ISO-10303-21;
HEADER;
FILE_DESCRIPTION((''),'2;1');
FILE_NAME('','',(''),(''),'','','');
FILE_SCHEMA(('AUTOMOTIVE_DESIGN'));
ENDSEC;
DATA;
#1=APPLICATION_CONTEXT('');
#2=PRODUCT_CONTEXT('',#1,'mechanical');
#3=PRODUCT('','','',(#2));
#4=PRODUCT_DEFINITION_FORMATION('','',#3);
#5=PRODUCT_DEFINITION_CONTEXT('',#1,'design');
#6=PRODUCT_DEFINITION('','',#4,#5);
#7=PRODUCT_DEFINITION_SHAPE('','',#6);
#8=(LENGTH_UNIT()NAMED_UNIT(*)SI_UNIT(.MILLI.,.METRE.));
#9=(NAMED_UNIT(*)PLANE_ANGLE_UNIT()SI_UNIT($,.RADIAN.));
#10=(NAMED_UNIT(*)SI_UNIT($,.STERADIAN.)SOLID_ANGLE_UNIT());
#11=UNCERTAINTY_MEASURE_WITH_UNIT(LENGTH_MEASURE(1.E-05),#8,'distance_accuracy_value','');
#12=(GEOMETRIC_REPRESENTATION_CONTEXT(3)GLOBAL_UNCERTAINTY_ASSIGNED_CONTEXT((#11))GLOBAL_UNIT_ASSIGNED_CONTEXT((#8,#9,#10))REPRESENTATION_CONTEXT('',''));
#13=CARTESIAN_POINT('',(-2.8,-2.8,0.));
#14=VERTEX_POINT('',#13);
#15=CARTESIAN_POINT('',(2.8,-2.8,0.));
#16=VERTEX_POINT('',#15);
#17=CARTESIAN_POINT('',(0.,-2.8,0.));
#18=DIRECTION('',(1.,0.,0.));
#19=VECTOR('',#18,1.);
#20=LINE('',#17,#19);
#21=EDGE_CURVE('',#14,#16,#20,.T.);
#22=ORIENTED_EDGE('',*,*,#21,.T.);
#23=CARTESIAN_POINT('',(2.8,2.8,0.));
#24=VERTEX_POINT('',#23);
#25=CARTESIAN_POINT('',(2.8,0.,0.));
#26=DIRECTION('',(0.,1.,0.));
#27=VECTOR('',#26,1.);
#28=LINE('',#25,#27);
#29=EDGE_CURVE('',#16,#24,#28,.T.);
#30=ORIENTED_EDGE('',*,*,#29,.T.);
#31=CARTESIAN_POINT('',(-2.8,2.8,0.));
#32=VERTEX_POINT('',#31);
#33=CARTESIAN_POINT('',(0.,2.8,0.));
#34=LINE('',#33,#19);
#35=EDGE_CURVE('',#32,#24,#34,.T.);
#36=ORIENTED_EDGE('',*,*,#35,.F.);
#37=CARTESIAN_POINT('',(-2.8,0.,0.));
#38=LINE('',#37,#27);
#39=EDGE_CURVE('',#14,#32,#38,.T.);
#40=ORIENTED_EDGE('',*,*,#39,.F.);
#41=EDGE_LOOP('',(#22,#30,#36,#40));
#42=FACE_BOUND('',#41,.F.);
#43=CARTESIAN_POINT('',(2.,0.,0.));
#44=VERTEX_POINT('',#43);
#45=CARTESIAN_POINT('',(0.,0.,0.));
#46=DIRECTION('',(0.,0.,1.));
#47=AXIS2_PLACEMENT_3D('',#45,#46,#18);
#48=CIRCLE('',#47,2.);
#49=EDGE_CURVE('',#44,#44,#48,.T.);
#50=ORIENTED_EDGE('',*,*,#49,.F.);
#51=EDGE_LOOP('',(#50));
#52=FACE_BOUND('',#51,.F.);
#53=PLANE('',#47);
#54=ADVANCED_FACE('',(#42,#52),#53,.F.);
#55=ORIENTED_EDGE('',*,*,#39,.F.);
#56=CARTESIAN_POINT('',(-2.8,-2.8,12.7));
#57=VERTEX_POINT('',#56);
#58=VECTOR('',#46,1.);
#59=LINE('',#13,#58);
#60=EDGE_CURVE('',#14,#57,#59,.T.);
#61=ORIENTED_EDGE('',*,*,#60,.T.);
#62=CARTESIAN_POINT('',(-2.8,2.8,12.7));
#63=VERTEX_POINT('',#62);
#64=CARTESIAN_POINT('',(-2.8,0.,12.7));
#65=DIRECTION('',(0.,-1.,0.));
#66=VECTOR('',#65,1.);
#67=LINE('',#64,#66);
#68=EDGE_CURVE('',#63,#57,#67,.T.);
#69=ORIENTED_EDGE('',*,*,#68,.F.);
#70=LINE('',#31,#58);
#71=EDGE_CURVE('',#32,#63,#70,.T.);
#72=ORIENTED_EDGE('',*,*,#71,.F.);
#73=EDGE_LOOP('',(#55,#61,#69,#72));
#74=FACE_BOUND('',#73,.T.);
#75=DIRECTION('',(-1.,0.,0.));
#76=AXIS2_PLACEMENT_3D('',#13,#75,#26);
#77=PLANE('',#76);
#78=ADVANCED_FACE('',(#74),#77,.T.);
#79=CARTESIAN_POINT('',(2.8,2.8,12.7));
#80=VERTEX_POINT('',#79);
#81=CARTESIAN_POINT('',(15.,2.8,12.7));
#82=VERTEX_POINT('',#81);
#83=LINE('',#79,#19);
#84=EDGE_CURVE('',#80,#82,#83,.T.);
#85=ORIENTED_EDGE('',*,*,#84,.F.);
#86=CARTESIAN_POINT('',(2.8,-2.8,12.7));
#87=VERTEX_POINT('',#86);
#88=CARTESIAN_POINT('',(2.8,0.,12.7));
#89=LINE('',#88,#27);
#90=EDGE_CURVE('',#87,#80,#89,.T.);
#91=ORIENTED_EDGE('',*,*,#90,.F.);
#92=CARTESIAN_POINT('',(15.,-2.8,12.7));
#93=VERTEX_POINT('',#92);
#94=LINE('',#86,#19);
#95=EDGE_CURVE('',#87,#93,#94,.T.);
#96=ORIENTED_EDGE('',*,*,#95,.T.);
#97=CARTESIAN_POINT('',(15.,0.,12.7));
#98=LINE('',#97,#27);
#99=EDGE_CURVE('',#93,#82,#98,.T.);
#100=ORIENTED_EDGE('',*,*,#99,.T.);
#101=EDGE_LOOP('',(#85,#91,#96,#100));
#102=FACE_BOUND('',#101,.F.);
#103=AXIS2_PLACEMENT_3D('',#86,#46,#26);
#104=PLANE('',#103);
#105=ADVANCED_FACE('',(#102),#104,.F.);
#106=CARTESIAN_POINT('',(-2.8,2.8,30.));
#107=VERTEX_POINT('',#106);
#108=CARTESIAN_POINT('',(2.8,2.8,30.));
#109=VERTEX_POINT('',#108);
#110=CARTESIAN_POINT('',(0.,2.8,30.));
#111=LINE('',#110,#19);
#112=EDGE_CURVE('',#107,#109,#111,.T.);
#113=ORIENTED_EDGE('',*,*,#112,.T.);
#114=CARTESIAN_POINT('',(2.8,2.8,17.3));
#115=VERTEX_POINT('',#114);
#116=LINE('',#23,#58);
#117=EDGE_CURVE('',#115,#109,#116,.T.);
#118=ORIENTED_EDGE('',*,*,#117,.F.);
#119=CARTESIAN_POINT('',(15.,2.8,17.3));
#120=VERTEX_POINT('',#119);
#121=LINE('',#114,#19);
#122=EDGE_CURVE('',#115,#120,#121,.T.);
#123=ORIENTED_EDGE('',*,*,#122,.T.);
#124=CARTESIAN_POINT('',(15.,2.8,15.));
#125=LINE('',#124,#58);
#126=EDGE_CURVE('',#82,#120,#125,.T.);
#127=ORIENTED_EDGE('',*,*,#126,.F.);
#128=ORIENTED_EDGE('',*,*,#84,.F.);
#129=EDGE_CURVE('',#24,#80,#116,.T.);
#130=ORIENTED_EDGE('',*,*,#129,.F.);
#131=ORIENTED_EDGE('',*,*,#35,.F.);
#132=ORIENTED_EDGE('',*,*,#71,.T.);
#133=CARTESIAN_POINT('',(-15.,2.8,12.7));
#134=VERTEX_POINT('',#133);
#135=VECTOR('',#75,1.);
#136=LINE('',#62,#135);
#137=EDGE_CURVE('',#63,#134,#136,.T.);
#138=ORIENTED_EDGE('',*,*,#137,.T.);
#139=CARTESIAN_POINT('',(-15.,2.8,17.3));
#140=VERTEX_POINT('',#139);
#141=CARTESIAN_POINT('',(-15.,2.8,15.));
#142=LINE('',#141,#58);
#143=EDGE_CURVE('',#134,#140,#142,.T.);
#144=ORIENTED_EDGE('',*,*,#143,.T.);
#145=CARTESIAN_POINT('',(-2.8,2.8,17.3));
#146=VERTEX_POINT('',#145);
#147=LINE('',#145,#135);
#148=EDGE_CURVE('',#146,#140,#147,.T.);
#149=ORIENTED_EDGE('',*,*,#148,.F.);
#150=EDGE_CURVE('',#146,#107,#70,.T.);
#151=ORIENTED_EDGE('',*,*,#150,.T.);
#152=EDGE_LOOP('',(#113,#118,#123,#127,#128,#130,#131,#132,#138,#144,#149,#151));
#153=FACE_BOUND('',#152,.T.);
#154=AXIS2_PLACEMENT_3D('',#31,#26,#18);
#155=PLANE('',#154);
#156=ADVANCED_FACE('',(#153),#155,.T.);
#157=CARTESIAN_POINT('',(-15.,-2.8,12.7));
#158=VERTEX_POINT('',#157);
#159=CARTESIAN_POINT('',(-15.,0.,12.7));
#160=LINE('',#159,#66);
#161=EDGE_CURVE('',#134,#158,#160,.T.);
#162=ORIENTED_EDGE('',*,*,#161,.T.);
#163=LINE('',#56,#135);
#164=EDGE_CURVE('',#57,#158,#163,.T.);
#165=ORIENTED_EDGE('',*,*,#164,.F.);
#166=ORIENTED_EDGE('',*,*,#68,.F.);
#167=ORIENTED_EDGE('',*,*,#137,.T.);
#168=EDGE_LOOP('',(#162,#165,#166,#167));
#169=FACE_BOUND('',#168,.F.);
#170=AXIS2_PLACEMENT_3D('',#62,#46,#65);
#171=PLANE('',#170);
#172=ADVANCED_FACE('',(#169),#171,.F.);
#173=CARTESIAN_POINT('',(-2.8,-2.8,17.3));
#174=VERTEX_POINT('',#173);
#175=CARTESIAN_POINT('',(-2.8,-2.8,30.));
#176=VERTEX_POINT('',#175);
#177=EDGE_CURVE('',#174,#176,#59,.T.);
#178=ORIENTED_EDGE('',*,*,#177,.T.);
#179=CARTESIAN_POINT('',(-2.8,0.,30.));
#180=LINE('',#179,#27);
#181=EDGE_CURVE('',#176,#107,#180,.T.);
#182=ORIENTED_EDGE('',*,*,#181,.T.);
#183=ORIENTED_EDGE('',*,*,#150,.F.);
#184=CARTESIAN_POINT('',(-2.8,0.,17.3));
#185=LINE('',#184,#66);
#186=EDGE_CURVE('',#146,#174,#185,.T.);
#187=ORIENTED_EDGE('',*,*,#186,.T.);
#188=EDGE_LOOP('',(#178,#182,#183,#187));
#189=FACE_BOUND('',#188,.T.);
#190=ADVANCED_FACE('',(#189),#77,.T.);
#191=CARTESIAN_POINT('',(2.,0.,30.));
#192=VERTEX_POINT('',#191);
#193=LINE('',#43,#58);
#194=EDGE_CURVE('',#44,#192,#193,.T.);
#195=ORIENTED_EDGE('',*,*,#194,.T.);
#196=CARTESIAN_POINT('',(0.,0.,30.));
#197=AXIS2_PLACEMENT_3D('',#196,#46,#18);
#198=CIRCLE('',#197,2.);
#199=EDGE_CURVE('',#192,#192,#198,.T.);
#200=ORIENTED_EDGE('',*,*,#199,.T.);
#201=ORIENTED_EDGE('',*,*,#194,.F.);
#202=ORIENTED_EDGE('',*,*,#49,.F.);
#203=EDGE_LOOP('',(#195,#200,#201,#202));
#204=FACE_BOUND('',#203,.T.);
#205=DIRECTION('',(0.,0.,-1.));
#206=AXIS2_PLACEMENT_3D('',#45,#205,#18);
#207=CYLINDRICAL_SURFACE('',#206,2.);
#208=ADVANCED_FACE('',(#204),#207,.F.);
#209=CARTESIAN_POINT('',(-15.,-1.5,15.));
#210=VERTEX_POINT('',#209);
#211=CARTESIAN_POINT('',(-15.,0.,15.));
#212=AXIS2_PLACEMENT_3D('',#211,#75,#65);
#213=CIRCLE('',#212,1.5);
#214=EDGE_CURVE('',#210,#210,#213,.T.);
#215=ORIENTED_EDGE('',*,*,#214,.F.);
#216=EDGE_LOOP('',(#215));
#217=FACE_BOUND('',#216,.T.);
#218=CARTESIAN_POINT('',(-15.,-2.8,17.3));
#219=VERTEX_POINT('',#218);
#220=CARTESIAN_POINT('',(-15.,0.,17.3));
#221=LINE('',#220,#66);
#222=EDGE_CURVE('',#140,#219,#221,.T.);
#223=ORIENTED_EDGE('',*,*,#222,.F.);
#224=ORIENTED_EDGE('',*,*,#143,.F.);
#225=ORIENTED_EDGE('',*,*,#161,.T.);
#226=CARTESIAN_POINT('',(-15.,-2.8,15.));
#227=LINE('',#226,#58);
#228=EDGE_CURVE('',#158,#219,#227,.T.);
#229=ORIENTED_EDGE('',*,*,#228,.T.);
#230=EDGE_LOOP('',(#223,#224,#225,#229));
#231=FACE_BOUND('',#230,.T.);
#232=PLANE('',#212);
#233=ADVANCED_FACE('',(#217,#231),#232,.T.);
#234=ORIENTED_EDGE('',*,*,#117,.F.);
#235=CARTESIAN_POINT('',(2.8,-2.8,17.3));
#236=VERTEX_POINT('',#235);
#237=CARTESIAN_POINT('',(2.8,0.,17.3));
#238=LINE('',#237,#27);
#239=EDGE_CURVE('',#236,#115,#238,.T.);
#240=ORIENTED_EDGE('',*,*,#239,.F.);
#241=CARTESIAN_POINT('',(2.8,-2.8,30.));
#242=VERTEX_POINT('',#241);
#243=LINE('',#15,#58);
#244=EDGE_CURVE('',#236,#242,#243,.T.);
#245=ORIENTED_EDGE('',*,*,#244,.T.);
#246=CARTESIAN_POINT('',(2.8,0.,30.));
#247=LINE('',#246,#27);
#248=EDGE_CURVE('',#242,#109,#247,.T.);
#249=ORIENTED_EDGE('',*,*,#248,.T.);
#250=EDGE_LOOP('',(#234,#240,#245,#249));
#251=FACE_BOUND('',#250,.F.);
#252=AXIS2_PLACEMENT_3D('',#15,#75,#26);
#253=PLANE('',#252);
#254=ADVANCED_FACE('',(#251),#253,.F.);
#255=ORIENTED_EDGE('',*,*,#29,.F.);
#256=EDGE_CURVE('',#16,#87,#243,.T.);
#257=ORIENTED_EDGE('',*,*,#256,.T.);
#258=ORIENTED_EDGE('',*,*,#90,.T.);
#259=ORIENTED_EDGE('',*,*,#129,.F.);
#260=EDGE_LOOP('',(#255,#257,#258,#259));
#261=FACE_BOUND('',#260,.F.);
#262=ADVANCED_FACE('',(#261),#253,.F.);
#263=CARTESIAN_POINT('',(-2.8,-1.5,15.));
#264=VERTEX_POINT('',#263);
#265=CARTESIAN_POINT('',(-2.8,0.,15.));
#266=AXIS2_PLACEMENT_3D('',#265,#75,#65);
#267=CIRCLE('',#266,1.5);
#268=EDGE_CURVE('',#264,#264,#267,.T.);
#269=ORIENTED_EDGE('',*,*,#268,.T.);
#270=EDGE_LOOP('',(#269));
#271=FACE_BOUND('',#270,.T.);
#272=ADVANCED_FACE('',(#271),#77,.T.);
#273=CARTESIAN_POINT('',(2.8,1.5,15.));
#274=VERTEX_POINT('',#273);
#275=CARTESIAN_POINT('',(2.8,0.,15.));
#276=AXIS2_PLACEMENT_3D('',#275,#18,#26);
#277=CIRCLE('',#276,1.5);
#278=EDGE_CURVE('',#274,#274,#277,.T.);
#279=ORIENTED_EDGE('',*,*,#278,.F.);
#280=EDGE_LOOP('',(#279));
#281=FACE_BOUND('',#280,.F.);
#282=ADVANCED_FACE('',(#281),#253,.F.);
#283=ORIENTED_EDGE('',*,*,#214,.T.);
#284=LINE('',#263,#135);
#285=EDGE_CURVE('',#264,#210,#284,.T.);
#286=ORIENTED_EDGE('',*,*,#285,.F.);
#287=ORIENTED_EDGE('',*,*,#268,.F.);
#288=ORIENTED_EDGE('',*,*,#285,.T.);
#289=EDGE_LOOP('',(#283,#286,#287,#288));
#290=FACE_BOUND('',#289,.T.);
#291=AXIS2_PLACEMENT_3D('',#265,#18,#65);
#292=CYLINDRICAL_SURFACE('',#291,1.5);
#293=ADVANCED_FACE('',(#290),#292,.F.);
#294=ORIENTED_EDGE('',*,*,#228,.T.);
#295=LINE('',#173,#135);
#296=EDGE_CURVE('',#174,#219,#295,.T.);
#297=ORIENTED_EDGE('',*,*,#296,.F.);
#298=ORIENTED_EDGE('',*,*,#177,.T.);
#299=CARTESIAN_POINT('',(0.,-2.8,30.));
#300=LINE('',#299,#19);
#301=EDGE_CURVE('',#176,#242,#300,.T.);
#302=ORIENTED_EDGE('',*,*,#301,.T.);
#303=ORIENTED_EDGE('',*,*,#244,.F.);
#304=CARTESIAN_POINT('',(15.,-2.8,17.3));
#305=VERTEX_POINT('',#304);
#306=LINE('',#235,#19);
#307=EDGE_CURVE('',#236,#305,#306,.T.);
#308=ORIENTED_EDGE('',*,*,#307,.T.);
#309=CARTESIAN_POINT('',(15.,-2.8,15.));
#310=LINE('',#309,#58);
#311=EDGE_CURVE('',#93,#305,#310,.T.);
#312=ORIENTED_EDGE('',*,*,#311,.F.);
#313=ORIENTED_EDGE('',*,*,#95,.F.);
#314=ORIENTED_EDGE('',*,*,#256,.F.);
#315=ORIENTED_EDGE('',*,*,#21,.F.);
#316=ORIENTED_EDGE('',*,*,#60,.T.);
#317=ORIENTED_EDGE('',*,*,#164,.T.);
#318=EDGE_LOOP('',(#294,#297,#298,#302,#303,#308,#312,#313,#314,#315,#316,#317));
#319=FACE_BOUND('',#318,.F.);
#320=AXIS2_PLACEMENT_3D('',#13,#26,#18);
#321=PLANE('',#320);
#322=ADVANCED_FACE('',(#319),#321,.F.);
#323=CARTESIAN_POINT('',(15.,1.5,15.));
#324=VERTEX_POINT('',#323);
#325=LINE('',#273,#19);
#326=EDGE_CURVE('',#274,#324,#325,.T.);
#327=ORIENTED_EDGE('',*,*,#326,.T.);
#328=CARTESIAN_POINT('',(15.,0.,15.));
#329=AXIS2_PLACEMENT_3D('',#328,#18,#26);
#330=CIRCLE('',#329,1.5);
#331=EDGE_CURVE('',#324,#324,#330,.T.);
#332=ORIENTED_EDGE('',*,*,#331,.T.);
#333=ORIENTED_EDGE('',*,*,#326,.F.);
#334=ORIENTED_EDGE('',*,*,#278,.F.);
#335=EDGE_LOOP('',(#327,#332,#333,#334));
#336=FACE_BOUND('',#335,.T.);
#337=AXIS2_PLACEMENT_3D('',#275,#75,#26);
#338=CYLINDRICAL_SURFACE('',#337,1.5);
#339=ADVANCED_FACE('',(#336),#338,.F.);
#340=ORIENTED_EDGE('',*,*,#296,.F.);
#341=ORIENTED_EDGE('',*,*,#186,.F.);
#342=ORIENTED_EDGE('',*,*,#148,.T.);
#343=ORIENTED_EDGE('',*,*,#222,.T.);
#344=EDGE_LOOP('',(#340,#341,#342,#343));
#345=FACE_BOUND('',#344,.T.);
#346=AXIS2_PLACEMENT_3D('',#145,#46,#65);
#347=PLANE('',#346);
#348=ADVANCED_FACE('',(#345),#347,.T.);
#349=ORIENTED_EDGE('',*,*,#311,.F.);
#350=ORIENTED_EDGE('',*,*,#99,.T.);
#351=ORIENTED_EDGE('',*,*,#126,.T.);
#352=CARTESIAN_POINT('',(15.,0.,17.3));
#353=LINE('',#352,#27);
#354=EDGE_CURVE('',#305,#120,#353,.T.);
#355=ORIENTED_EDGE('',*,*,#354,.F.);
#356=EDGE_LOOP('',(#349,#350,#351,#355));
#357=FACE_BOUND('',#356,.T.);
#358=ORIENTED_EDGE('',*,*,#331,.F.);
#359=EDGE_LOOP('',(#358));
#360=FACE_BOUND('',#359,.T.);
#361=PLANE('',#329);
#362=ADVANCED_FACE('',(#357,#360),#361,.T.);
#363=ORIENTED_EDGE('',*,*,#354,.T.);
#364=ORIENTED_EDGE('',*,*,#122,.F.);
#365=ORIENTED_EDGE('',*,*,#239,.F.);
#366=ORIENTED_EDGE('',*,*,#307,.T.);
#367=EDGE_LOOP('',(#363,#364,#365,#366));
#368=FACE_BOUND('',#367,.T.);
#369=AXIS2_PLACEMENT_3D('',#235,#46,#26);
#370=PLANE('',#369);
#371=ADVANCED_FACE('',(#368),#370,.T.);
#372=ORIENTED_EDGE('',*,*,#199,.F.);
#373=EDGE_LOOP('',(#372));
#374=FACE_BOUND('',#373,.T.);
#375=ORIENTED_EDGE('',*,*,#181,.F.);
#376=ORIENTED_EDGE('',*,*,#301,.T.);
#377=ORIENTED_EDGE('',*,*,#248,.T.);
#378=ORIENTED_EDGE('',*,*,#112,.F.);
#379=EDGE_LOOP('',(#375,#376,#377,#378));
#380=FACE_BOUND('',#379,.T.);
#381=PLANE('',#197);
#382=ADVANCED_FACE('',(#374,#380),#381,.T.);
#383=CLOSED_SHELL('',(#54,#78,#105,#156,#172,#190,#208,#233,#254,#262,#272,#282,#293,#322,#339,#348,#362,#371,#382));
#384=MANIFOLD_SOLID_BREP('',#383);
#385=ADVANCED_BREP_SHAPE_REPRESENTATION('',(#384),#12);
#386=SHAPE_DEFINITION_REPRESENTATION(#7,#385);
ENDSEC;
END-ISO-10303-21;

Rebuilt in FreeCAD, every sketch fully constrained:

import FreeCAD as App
import Part
import Sketcher

V = App.Vector


def add_polygon(sketch, points):
    """Adds a closed chain of lines whose ends are joined by coincident constraints."""
    first, n = sketch.GeometryCount, len(points)
    for a, b in zip(points, points[1:] + points[:1]):
        sketch.addGeometry(Part.LineSegment(App.Vector(*a, 0), App.Vector(*b, 0)), False)
    for i in range(n):
        sketch.addConstraint(Sketcher.Constraint("Coincident", first + i, 2, first + (i + 1) % n, 1))

doc = App.newDocument("Part")
body = doc.addObject("PartDesign::Body", "Body")

sketch1 = body.newObject("Sketcher::SketchObject", "Sketch")
sketch1.AttachmentSupport = (doc.getObject("XY_Plane"), [""])
sketch1.MapMode = "FlatFace"
add_polygon(sketch1, [(-2.8, 2.8), (-2.8, -2.8), (2.8, -2.8), (2.8, 2.8)])
sketch1.addGeometry(Part.Circle(V(0, 0, 0), V(0, 0, 1), 2), False)
sketch1.addConstraint([
    Sketcher.Constraint("Vertical", 0),
    Sketcher.Constraint("Horizontal", 1),
    Sketcher.Constraint("Vertical", 2),
    Sketcher.Constraint("Horizontal", 3),
    Sketcher.Constraint("Coincident", 4, 3, -1, 1),
    Sketcher.Constraint("Symmetric", 0, 2, 2, 2, -1, 1),
    Sketcher.Constraint("Equal", 3, 0),
    Sketcher.Constraint("Diameter", 4, 4.0),
    Sketcher.Constraint("DistanceX", 1, 1, 1, 2, 5.6),
])
pad1 = body.newObject("PartDesign::Pad", "Pad")
pad1.Profile = sketch1
pad1.Length = 30

sketch2 = body.newObject("Sketcher::SketchObject", "Sketch001")
sketch2.AttachmentSupport = (doc.getObject("YZ_Plane"), [""])
sketch2.MapMode = "FlatFace"
sketch2.AttachmentOffset = App.Placement(V(0, 0, 2.8), App.Rotation())
add_polygon(sketch2, [(-2.8, 17.3), (-2.8, 12.7), (2.8, 12.7), (2.8, 17.3)])
sketch2.addGeometry(Part.Circle(V(0, 15, 0), V(0, 0, 1), 1.5), False)
sketch2.addConstraint([
    Sketcher.Constraint("Vertical", 0),
    Sketcher.Constraint("Horizontal", 1),
    Sketcher.Constraint("Vertical", 2),
    Sketcher.Constraint("Horizontal", 3),
    Sketcher.Constraint("PointOnObject", 4, 3, -2),
    Sketcher.Constraint("Diameter", 4, 3.0),
    Sketcher.Constraint("DistanceX", 1, 1, 1, 2, 5.6),
    Sketcher.Constraint("DistanceY", 0, 2, 0, 1, 4.6),
    Sketcher.Constraint("DistanceY", -1, 1, 4, 3, 15.0),
    Sketcher.Constraint("DistanceX", 0, 2, -1, 1, 2.8),
    Sketcher.Constraint("DistanceY", -1, 1, 0, 2, 12.7),
])
pad2 = body.newObject("PartDesign::Pad", "Pad001")
pad2.Profile = sketch2
pad2.Length = 12.2

sketch3 = body.newObject("Sketcher::SketchObject", "Sketch002")
sketch3.AttachmentSupport = (doc.getObject("YZ_Plane"), [""])
sketch3.MapMode = "FlatFace"
sketch3.AttachmentOffset = App.Placement(V(0, 0, -2.8), App.Rotation())
add_polygon(sketch3, [(2.8, 17.3), (2.8, 12.7), (-2.8, 12.7), (-2.8, 17.3)])
sketch3.addGeometry(Part.Circle(V(0, 15, 0), V(0, 0, 1), 1.5), False)
sketch3.addConstraint([
    Sketcher.Constraint("Vertical", 0),
    Sketcher.Constraint("Horizontal", 1),
    Sketcher.Constraint("Vertical", 2),
    Sketcher.Constraint("Horizontal", 3),
    Sketcher.Constraint("PointOnObject", 4, 3, -2),
    Sketcher.Constraint("Diameter", 4, 3.0),
    Sketcher.Constraint("DistanceX", 1, 2, 1, 1, 5.6),
    Sketcher.Constraint("DistanceY", 0, 2, 0, 1, 4.6),
    Sketcher.Constraint("DistanceY", -1, 1, 4, 3, 15.0),
    Sketcher.Constraint("DistanceX", -1, 1, 0, 2, 2.8),
    Sketcher.Constraint("DistanceY", -1, 1, 0, 2, 12.7),
])
pad3 = body.newObject("PartDesign::Pad", "Pad002")
pad3.Profile = sketch3
pad3.Length = 12.2
pad3.Reversed = True

doc.recompute()
